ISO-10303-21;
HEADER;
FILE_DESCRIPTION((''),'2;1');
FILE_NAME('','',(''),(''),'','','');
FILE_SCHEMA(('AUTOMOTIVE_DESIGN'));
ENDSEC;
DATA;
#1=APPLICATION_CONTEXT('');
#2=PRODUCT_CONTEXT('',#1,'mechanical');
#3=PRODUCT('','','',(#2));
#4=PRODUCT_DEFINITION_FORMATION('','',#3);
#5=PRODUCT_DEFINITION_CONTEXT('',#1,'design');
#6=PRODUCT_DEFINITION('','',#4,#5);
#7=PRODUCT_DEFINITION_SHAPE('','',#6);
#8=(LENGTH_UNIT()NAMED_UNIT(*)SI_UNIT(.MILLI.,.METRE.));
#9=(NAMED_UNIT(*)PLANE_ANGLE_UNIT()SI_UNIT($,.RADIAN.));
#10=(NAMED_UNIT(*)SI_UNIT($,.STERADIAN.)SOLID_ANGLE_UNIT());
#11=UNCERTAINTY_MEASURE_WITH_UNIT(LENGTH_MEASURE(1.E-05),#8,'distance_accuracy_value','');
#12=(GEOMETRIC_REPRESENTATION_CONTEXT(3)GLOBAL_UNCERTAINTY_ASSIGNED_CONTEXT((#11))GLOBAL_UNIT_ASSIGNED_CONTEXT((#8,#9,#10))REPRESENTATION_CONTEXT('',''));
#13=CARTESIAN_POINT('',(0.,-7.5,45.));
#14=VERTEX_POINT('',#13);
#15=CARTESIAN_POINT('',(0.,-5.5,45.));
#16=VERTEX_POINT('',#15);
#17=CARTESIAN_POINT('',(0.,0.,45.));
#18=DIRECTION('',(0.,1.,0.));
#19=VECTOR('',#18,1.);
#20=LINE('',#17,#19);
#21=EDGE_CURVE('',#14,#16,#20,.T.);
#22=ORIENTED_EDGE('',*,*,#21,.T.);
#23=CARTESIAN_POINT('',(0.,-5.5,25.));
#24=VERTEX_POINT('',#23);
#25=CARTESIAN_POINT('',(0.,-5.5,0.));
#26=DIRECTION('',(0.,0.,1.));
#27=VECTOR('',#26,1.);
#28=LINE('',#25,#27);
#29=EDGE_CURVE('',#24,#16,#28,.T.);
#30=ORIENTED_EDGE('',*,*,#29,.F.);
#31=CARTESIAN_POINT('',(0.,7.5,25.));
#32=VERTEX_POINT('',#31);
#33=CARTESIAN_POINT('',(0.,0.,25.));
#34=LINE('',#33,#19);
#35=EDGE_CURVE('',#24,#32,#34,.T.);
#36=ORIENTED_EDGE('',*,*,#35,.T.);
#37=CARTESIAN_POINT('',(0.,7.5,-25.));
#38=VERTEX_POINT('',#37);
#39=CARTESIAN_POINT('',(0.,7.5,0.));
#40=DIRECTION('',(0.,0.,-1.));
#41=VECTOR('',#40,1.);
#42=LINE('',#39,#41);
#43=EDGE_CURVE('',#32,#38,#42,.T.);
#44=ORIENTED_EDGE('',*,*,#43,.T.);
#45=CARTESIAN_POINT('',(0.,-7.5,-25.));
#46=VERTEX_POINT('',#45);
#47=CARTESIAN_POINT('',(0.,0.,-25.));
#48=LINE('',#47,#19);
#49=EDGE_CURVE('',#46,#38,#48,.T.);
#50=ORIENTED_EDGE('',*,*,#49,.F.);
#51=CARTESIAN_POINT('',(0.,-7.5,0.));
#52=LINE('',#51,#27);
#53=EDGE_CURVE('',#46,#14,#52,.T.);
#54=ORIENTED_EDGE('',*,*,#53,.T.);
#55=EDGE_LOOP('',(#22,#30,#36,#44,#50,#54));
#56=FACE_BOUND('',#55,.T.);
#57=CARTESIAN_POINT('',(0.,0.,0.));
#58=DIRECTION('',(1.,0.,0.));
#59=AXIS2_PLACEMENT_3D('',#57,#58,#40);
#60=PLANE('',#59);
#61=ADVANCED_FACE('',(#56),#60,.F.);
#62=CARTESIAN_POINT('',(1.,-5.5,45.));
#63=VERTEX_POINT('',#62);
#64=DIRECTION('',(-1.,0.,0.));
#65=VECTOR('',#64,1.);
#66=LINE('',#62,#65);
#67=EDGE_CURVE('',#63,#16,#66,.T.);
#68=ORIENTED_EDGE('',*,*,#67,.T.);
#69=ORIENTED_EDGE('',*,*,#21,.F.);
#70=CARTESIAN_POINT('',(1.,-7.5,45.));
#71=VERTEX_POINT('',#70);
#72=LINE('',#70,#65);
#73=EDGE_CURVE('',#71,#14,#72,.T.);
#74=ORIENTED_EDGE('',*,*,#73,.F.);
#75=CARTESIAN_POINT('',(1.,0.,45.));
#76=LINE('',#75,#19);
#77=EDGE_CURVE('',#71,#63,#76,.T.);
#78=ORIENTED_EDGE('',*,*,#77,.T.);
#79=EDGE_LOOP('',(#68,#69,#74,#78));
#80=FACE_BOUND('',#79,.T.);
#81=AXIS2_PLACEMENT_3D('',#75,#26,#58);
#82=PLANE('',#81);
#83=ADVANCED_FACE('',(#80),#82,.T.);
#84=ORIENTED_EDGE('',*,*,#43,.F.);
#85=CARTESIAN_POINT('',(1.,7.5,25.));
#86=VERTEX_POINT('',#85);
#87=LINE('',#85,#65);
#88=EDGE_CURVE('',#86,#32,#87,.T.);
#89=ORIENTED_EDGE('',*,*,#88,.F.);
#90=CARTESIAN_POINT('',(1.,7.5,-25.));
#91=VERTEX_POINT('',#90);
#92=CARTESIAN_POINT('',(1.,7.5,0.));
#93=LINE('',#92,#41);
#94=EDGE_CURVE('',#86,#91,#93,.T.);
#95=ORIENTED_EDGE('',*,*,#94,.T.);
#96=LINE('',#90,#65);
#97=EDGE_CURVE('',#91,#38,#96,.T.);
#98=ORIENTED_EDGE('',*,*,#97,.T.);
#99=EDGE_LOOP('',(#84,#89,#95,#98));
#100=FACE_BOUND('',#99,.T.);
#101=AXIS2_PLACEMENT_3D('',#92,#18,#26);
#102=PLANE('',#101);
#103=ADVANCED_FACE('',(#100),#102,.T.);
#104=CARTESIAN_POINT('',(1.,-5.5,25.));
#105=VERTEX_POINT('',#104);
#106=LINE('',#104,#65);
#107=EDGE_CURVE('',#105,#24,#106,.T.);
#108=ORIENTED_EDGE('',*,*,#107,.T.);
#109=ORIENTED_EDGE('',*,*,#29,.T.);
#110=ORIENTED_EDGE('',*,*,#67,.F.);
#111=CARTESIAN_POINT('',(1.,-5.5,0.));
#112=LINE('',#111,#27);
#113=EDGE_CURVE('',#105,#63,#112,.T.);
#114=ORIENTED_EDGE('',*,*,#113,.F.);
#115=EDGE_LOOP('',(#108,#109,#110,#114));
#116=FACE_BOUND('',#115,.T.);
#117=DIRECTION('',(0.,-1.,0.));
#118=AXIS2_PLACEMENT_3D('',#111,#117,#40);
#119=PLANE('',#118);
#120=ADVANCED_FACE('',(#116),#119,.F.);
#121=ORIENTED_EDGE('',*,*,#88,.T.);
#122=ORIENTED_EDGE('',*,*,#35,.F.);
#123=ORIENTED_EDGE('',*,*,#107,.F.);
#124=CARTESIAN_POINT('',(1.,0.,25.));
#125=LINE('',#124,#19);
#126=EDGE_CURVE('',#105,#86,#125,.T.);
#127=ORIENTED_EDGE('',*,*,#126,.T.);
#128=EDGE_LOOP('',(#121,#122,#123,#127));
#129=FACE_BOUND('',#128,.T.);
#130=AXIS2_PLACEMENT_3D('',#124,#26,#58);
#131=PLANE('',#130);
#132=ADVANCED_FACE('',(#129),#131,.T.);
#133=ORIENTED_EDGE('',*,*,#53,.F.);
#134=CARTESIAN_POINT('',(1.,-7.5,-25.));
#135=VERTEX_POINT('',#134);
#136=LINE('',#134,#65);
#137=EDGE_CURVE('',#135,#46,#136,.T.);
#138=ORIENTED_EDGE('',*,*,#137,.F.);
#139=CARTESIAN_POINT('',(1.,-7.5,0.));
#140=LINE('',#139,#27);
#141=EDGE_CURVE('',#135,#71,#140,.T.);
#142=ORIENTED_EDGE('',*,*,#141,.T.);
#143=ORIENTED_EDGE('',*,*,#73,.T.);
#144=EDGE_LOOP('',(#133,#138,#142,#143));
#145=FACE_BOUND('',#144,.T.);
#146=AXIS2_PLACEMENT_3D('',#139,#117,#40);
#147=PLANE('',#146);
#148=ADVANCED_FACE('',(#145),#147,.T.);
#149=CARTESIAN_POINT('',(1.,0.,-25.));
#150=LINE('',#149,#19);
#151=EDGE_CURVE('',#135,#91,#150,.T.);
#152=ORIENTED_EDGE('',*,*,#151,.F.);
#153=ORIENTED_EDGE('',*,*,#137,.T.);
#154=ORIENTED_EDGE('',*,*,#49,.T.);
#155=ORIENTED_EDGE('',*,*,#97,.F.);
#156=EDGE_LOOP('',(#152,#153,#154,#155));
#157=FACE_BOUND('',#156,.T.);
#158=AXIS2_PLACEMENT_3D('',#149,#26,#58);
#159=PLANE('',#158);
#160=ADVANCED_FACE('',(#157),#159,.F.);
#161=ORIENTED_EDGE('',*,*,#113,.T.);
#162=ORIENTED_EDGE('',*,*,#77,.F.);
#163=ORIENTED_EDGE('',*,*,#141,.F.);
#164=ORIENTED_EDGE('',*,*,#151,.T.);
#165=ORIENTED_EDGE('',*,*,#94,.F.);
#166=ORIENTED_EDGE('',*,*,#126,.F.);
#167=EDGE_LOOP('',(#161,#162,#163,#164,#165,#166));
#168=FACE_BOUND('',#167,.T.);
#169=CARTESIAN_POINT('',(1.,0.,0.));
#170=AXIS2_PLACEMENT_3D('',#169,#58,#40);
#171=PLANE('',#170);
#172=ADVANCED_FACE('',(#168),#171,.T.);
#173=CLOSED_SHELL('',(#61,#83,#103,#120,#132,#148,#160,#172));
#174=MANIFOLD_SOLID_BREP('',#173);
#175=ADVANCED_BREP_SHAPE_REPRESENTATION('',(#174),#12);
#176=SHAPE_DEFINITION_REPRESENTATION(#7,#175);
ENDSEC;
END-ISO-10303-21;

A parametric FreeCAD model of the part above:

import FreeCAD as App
import Part
import Sketcher

V = App.Vector

doc = App.newDocument("Part")
body = doc.addObject("PartDesign::Body", "Body")

sketch1 = body.newObject("Sketcher::SketchObject", "Sketch")
sketch1.AttachmentSupport = (doc.getObject("YZ_Plane"), [""])
sketch1.MapMode = "FlatFace"
sketch1.addGeometry(Part.LineSegment(V(-5.5, 45, 0), V(-7.5, 45, 0)), False)
sketch1.addGeometry(Part.LineSegment(V(-7.5, 45, 0), V(-7.5, -25, 0)), False)
sketch1.addGeometry(Part.LineSegment(V(-7.5, -25, 0), V(7.5, -25, 0)), False)
sketch1.addGeometry(Part.LineSegment(V(7.5, -25, 0), V(7.5, 25, 0)), False)
sketch1.addGeometry(Part.LineSegment(V(7.5, 25, 0), V(-5.5, 25, 0)), False)
sketch1.addGeometry(Part.LineSegment(V(-5.5, 25, 0), V(-5.5, 45, 0)), False)
sketch1.addConstraint(Sketcher.Constraint("Coincident", 0, 2, 1, 1))
sketch1.addConstraint(Sketcher.Constraint("Coincident", 1, 2, 2, 1))
sketch1.addConstraint(Sketcher.Constraint("Coincident", 2, 2, 3, 1))
sketch1.addConstraint(Sketcher.Constraint("Coincident", 3, 2, 4, 1))
sketch1.addConstraint(Sketcher.Constraint("Coincident", 4, 2, 5, 1))
sketch1.addConstraint(Sketcher.Constraint("Coincident", 5, 2, 0, 1))
sketch1.addConstraint(Sketcher.Constraint("Horizontal", 0))
sketch1.addConstraint(Sketcher.Constraint("Vertical", 1))
sketch1.addConstraint(Sketcher.Constraint("Horizontal", 2))
sketch1.addConstraint(Sketcher.Constraint("Vertical", 3))
sketch1.addConstraint(Sketcher.Constraint("Horizontal", 4))
sketch1.addConstraint(Sketcher.Constraint("Vertical", 5))
sketch1.addConstraint(Sketcher.Constraint("Symmetric", 1, 2, 3, 2, -1, 1))
sketch1.addConstraint(Sketcher.Constraint("DistanceX", 0, 2, 0, 1, 2.0))
sketch1.addConstraint(Sketcher.Constraint("DistanceX", 2, 1, 2, 2, 15.0))
sketch1.addConstraint(Sketcher.Constraint("DistanceY", 1, 2, 1, 1, 70.0))
sketch1.addConstraint(Sketcher.Constraint("DistanceY", 3, 1, 3, 2, 50.0))
pad1 = body.newObject("PartDesign::Pad", "Pad")
pad1.Profile = sketch1
pad1.Length = 1

doc.recompute()
